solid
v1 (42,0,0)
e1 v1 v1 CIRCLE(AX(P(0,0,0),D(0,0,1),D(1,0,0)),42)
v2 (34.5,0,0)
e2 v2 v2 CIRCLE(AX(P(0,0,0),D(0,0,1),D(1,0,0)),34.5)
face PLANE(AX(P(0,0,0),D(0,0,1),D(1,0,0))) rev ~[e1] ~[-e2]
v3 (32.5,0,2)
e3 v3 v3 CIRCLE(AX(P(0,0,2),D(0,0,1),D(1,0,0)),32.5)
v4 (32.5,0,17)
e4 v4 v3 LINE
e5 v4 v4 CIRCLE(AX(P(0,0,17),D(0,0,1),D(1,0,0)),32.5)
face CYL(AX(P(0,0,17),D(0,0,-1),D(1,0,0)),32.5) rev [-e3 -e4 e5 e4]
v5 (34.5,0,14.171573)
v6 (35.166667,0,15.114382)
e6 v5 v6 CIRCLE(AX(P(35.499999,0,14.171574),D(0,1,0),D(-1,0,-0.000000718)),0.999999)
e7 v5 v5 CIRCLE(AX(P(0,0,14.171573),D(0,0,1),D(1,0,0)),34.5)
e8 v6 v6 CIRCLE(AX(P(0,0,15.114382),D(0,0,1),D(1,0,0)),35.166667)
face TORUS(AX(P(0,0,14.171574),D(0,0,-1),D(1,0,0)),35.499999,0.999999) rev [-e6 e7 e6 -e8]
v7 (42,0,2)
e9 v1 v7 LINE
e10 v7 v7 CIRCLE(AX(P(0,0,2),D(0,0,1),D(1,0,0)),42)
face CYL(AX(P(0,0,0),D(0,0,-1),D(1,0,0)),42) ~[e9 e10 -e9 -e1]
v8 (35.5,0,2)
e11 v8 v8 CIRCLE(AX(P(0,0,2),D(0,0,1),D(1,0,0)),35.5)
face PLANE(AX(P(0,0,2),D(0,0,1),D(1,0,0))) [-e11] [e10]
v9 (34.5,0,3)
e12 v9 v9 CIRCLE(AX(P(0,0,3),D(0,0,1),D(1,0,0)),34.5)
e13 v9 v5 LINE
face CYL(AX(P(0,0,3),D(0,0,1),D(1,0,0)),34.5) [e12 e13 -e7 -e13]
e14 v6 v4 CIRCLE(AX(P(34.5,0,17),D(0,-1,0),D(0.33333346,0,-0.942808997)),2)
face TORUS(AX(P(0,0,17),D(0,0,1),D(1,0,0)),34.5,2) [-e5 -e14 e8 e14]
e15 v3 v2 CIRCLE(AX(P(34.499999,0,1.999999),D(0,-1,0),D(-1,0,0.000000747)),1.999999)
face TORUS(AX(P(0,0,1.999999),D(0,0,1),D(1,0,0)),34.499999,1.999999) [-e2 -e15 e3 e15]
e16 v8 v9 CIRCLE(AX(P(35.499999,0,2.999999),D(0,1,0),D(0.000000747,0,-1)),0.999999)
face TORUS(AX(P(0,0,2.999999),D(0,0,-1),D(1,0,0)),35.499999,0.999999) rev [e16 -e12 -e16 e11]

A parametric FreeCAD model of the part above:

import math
import FreeCAD as App
import Part
import Sketcher

doc = App.newDocument("Part")
params = doc.addObject("Spreadsheet::Sheet", "Params")
for row, (alias, value) in enumerate([
    ("sketch1_diameter", "84 mm"),
    ("sketch1_diameter2", "73 mm"),
    ("pad1_length", "2 mm"),
    ("sketch2_radius", "0.999999 mm"),
    ("sketch2_radius2", "2 mm"),
    ("sketch2_height", "15 mm"),
    ("revolution_angle", "360 deg"),
], start=1):
    params.set(f"A{row}", alias)
    params.set(f"B{row}", "=" + value)
    params.setAlias(f"B{row}", alias)

body = doc.addObject("PartDesign::Body", "Body")

# Sketch on XY plane
sketch1 = doc.addObject("Sketcher::SketchObject", "Sketch")
body.addObject(sketch1)
sketch1.AttachmentSupport = (doc.XY_Plane, [""])
sketch1.MapMode = "FlatFace"
sketch1.addGeometry([
    Part.Circle(App.Vector(0, 0, 0), App.Vector(0, 0, 1), 42),
    Part.Circle(App.Vector(0, 0, 0), App.Vector(0, 0, 1), 36),
], False)
sketch1.addConstraint([
    Sketcher.Constraint("Coincident", 0, 3, -1, 1),
    Sketcher.Constraint("Coincident", 1, 3, -1, 1),
    Sketcher.Constraint("Diameter", 0, 84.0),
    Sketcher.Constraint("Diameter", 1, 73.0),
])
sketch1.setExpression("Constraints[2]", "Params.sketch1_diameter")
sketch1.setExpression("Constraints[3]", "Params.sketch1_diameter2")
pad1 = doc.addObject("PartDesign::Pad", "Pad")
body.addObject(pad1)
pad1.Profile = sketch1
pad1.setExpression("Length", "Params.pad1_length")

# Sketch on XZ plane
sketch2 = doc.addObject("Sketcher::SketchObject", "Sketch001")
body.addObject(sketch2)
sketch2.AttachmentSupport = (doc.XZ_Plane, [""])
sketch2.MapMode = "FlatFace"
sketch2.addGeometry([
    Part.LineSegment(App.Vector(36.5, 0, 0), App.Vector(36.5, 2, 0)),  # 0
    Part.LineSegment(App.Vector(36.5, 2, 0), App.Vector(35.5, 2, 0)),  # 1
    Part.ArcOfCircle(Part.Circle(App.Vector(35.5, 3, 0), App.Vector(0, 0, 1), 1), math.radians(180), math.radians(270)),  # 2
    Part.LineSegment(App.Vector(34.5, 3, 0), App.Vector(34.5, 14.2, 0)),  # 3
    Part.ArcOfCircle(Part.Circle(App.Vector(35.5, 14.2, 0), App.Vector(0, 0, 1), 1), math.radians(109), math.radians(180)),  # 4
    Part.ArcOfCircle(Part.Circle(App.Vector(34.5, 17, 0), App.Vector(0, 0, 1), 2), math.radians(-71), math.radians(180)),  # 5
    Part.LineSegment(App.Vector(32.5, 17, 0), App.Vector(32.5, 2, 0)),  # 6
    Part.ArcOfCircle(Part.Circle(App.Vector(34.5, 2, 0), App.Vector(0, 0, 1), 2), math.radians(180), math.radians(270)),  # 7
    Part.LineSegment(App.Vector(34.5, 0, 0), App.Vector(36.5, 0, 0)),  # 8
], False)
sketch2.addConstraint([
    Sketcher.Constraint("Coincident", 0, 2, 1, 1),
    Sketcher.Constraint("Tangent", 1, 2, 2, 2),
    Sketcher.Constraint("Tangent", 2, 1, 3, 1),
    Sketcher.Constraint("Tangent", 3, 2, 4, 2),
    Sketcher.Constraint("Tangent", 4, 1, 5, 1),
    Sketcher.Constraint("Tangent", 5, 2, 6, 1),
    Sketcher.Constraint("Tangent", 6, 2, 7, 1),
    Sketcher.Constraint("Tangent", 7, 2, 8, 1),
    Sketcher.Constraint("Coincident", 8, 2, 0, 1),
    Sketcher.Constraint("Vertical", 0),
    Sketcher.Constraint("Horizontal", 1),
    Sketcher.Constraint("Vertical", 3),
    Sketcher.Constraint("Vertical", 6),
    Sketcher.Constraint("Horizontal", 8),
    Sketcher.Constraint("Equal", 2, 4),
    Sketcher.Constraint("Equal", 5, 7),
    Sketcher.Constraint("PointOnObject", 7, 2, -1),
    Sketcher.Constraint("Horizontal", 7, 3, 0, 2),
    Sketcher.Constraint("Vertical", 7, 3, 2, 1),
    Sketcher.Constraint("Equal", 8, 0),
    Sketcher.Constraint("Radius", 2, 0.999999),
    Sketcher.Constraint("Radius", 5, 2.0),
    Sketcher.Constraint("DistanceY", 6, 2, 6, 1, 15.0),
    Sketcher.Constraint("DistanceX", -1, 1, 2, 3, 35.499999),
])
sketch2.setExpression("Constraints[20]", "Params.sketch2_radius")
sketch2.setExpression("Constraints[21]", "Params.sketch2_radius2")
sketch2.setExpression("Constraints[22]", "Params.sketch2_height")
revolution = doc.addObject("PartDesign::Revolution", "Revolution")
body.addObject(revolution)
revolution.Profile = sketch2
revolution.ReferenceAxis = (sketch2, ["V_Axis"])
revolution.setExpression("Angle", "Params.revolution_angle")

doc.recompute()
